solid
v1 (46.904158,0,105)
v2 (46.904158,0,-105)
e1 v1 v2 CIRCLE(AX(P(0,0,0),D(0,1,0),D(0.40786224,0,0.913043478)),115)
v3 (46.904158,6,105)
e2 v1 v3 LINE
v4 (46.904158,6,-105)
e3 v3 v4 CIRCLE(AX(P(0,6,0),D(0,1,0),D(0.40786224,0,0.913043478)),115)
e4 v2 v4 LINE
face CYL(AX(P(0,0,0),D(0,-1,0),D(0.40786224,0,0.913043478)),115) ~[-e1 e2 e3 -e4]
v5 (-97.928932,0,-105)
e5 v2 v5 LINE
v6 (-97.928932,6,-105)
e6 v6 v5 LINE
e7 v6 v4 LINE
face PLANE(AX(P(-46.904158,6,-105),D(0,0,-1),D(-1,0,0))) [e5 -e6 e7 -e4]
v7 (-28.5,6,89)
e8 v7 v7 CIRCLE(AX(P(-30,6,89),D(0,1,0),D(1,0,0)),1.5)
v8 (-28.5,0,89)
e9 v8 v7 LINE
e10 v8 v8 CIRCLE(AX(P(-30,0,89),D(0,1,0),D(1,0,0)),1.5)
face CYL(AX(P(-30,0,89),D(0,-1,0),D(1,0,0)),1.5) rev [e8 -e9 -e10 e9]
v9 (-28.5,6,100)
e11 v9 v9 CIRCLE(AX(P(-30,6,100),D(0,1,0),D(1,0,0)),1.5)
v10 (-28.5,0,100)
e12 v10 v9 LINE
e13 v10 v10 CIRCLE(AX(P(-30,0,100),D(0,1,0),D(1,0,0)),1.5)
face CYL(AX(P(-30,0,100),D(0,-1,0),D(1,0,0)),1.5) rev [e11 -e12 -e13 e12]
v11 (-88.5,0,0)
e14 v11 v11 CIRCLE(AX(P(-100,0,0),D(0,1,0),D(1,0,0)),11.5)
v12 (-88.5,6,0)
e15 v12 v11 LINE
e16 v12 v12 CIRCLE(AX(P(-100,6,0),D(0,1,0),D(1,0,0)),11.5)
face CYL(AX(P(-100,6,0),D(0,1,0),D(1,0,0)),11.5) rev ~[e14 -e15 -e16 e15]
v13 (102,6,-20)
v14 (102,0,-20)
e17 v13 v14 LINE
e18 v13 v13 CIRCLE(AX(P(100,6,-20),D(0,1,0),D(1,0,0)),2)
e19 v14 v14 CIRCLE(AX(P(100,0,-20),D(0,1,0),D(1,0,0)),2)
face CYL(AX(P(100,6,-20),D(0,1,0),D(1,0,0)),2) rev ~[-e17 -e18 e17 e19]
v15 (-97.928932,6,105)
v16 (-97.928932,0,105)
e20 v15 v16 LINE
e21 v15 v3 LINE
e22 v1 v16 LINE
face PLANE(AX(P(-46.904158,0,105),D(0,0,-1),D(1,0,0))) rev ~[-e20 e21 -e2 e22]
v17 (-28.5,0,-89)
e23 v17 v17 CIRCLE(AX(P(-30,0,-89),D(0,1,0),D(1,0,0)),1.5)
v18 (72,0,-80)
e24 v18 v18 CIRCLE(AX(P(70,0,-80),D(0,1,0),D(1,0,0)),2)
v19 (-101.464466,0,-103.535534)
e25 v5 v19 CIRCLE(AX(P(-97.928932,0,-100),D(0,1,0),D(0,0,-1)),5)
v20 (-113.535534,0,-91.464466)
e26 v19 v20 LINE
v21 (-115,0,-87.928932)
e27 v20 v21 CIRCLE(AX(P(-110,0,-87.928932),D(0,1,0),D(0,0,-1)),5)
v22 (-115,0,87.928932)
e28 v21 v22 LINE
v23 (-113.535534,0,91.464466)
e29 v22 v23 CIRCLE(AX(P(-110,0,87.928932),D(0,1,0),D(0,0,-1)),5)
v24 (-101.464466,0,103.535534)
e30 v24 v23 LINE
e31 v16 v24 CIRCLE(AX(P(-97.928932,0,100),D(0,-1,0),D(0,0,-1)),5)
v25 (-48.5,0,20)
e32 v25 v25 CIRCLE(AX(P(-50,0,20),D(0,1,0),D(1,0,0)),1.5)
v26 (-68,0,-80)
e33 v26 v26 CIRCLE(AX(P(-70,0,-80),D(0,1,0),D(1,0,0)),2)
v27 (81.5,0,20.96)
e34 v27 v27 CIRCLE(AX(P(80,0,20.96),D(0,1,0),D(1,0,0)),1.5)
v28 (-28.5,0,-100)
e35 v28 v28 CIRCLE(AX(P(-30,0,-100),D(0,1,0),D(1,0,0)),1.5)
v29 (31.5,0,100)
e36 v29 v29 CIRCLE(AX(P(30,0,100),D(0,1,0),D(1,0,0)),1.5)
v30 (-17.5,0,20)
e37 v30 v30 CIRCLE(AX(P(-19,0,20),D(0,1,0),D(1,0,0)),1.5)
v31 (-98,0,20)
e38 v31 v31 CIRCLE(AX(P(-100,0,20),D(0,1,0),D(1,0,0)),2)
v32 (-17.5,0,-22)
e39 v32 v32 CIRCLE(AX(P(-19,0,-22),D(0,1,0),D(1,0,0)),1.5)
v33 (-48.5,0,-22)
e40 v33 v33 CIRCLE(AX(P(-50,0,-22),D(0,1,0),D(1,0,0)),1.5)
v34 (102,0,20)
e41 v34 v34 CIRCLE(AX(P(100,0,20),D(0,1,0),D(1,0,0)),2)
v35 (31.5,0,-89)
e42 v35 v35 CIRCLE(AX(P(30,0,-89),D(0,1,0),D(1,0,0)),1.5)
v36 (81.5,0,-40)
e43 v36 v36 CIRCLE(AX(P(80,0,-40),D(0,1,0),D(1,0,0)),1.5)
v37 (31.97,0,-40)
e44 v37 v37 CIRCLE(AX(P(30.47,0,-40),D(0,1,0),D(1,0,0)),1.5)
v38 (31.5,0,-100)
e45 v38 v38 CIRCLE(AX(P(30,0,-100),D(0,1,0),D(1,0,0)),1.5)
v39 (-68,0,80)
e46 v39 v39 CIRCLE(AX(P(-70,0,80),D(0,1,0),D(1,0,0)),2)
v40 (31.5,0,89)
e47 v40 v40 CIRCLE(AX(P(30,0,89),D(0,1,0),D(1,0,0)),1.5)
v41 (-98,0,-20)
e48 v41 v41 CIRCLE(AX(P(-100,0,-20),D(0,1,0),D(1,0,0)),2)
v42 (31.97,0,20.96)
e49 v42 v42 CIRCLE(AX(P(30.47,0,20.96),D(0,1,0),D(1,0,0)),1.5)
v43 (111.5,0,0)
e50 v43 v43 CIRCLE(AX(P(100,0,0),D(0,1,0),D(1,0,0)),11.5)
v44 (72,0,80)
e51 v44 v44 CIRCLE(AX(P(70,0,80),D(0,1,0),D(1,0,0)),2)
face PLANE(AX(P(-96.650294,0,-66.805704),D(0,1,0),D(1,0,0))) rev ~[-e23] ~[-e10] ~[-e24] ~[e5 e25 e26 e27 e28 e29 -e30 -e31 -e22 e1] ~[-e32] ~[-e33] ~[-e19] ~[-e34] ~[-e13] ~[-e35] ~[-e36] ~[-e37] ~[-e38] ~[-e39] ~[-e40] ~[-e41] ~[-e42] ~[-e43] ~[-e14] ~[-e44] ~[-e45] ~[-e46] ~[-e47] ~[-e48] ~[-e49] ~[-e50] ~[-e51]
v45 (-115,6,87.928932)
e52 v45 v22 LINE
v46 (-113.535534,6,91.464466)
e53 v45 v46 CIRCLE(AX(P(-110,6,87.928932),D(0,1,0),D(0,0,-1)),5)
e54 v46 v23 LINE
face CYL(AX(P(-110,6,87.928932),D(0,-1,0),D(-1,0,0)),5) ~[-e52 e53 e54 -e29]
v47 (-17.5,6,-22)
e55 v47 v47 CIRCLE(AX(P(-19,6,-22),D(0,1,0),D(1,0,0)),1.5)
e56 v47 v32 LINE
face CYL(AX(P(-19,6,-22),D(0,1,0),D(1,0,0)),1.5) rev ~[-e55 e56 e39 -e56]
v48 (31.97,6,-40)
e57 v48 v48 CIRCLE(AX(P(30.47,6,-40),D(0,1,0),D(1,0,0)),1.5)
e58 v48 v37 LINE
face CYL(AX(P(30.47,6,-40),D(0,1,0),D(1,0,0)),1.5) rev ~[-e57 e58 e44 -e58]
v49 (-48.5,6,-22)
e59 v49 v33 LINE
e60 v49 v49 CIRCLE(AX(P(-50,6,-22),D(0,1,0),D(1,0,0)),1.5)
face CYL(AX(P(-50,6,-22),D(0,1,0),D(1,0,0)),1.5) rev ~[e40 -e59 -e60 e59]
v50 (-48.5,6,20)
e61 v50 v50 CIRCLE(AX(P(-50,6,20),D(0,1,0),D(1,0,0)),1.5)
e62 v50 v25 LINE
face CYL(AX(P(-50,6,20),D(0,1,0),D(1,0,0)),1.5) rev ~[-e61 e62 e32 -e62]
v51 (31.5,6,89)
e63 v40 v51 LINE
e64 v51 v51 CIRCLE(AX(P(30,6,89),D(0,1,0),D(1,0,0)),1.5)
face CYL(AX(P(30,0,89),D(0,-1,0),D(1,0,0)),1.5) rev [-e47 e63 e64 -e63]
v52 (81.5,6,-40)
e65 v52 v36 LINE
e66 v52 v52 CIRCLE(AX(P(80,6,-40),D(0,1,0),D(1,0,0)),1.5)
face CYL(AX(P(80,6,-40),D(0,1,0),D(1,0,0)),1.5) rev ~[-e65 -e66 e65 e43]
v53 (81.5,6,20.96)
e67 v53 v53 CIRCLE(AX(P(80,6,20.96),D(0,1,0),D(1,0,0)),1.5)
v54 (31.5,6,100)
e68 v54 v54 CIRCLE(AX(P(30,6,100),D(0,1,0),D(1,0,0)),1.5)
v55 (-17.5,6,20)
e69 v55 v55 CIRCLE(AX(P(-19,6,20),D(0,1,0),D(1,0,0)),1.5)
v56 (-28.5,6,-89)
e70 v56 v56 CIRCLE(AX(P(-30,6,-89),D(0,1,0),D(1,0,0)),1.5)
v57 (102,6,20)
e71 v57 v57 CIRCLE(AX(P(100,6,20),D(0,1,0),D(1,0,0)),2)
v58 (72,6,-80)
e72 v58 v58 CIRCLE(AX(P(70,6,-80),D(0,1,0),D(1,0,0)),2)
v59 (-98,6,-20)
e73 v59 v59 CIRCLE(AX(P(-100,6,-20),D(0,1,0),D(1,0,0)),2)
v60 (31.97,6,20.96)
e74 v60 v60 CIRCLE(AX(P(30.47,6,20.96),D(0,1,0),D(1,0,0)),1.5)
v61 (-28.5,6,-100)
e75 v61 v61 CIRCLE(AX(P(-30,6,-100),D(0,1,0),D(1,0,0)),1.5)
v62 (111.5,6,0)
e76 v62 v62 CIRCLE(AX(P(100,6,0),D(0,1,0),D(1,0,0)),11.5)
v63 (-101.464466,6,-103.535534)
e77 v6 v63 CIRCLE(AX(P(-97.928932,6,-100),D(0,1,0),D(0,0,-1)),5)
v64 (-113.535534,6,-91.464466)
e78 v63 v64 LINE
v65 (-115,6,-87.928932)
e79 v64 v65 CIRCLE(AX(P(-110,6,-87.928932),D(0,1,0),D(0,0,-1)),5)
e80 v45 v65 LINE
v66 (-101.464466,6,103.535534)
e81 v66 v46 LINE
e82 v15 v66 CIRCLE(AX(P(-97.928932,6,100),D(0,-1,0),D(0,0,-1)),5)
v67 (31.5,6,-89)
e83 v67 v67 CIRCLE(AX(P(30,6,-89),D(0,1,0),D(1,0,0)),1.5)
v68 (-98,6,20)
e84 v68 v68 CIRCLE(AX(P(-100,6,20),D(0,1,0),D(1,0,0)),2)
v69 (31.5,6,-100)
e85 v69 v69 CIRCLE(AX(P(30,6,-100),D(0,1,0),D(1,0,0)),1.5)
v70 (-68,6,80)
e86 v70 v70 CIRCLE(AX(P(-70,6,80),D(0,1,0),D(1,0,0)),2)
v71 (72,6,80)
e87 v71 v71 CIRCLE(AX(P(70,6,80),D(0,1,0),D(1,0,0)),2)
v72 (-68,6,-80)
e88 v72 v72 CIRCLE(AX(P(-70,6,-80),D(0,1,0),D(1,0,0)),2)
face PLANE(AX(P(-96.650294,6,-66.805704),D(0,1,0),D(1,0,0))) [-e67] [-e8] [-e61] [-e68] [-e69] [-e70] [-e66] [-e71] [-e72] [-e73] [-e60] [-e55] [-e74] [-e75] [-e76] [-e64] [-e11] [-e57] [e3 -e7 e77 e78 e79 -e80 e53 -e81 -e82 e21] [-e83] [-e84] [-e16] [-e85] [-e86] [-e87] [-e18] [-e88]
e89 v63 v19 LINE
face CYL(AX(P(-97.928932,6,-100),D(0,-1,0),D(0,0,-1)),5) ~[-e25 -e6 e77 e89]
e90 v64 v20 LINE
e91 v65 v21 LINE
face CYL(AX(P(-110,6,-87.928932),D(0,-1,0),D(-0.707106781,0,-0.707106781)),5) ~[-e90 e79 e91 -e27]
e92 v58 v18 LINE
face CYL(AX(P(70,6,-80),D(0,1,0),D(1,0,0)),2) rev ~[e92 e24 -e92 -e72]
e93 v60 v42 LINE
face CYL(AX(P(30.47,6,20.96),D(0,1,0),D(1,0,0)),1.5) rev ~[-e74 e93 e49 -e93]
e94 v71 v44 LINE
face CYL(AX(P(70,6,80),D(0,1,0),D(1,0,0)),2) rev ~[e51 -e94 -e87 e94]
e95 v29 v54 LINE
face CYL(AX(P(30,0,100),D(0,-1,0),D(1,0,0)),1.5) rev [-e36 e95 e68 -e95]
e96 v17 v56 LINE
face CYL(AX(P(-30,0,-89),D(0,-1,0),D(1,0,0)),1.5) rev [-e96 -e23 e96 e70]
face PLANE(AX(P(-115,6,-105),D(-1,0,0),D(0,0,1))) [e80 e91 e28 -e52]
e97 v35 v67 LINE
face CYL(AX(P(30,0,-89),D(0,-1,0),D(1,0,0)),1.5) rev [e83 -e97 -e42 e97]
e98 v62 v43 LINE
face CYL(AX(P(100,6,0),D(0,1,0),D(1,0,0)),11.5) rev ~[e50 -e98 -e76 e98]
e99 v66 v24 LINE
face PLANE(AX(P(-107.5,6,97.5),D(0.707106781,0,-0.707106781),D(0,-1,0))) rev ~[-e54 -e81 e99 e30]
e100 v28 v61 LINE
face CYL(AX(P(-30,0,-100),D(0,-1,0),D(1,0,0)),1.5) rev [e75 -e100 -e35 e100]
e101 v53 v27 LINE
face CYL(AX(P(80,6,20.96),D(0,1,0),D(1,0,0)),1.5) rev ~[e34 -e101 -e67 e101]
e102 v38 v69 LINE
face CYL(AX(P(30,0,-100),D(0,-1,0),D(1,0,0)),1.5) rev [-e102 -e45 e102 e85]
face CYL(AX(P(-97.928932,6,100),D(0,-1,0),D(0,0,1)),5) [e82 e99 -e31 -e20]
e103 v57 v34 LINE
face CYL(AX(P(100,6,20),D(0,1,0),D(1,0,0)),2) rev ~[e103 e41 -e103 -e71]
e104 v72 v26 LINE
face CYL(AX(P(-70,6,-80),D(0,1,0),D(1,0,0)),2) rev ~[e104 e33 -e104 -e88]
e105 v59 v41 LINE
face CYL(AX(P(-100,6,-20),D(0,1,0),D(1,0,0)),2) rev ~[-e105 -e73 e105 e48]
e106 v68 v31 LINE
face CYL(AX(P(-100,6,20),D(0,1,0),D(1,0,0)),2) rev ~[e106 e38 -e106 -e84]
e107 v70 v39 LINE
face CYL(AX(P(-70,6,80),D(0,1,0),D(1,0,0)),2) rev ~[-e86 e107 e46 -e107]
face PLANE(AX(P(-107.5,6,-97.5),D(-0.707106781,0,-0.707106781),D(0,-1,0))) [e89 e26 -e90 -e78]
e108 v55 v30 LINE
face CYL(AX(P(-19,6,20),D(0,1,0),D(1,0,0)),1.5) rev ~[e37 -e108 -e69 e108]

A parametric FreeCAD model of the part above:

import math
import FreeCAD as App
import Part
import Sketcher


def edges_at(feature, points):
    """Names of the edges that pass closest to the given points."""
    edges = feature.Shape.Edges
    near = lambda p: min(range(len(edges)), key=lambda i: edges[i].distToShape(Part.Vertex(*p))[0])
    return sorted({f"Edge{near(p) + 1}" for p in points})

doc = App.newDocument("Part")
body = doc.addObject("PartDesign::Body", "Body")

sketch1 = body.newObject("Sketcher::SketchObject", "Sketch")
sketch1.AttachmentSupport = (doc.getObject("XZ_Plane"), [""])
sketch1.MapMode = "FlatFace"
sketch1.addGeometry([
    Part.LineSegment(App.Vector(-46.9, 105, 0), App.Vector(46.9, 105, 0)),
    Part.ArcOfCircle(Part.Circle(App.Vector(0, 0, 0), App.Vector(0, 0, 1), 115), math.radians(-66), math.radians(66)),
    Part.LineSegment(App.Vector(46.9, -105, 0), App.Vector(-46.9, -105, 0)),
    Part.ArcOfCircle(Part.Circle(App.Vector(0, 0, 0), App.Vector(0, 0, 1), 115), math.radians(114), math.radians(246)),
    Part.Circle(App.Vector(-30, 100, 0), App.Vector(0, 0, 1), 1.5),
    Part.Circle(App.Vector(-30, 89, 0), App.Vector(0, 0, 1), 1.5),
    Part.Circle(App.Vector(30, 100, 0), App.Vector(0, 0, 1), 1.5),
    Part.Circle(App.Vector(30, 89, 0), App.Vector(0, 0, 1), 1.5),
    Part.Circle(App.Vector(-30, -89, 0), App.Vector(0, 0, 1), 1.5),
    Part.Circle(App.Vector(-30, -100, 0), App.Vector(0, 0, 1), 1.5),
    Part.Circle(App.Vector(30, -89, 0), App.Vector(0, 0, 1), 1.5),
    Part.Circle(App.Vector(30, -100, 0), App.Vector(0, 0, 1), 1.5),
], False)
sketch1.addConstraint([
    Sketcher.Constraint("Coincident", 0, 2, 1, 2),
    Sketcher.Constraint("Coincident", 1, 1, 2, 1),
    Sketcher.Constraint("Coincident", 2, 2, 3, 2),
    Sketcher.Constraint("Coincident", 3, 1, 0, 1),
    Sketcher.Constraint("Horizontal", 0),
    Sketcher.Constraint("Horizontal", 2),
    Sketcher.Constraint("Coincident", 1, 3, -1, 1),
    Sketcher.Constraint("Coincident", 3, 3, -1, 1),
    Sketcher.Constraint("Equal", 1, 3),
    Sketcher.Constraint("Equal", 4, 5),
    Sketcher.Constraint("Equal", 5, 6),
    Sketcher.Constraint("Equal", 6, 7),
    Sketcher.Constraint("Equal", 7, 8),
    Sketcher.Constraint("Equal", 8, 9),
    Sketcher.Constraint("Equal", 9, 10),
    Sketcher.Constraint("Equal", 10, 11),
    Sketcher.Constraint("Symmetric", 7, 3, 8, 3, -1, 1),
    Sketcher.Constraint("Symmetric", 6, 3, 9, 3, -1, 1),
    Sketcher.Constraint("Symmetric", 5, 3, 10, 3, -1, 1),
    Sketcher.Constraint("Symmetric", 4, 3, 11, 3, -1, 1),
    Sketcher.Constraint("Symmetric", 4, 3, 6, 3, -2),
    Sketcher.Constraint("Symmetric", 5, 3, 7, 3, -2),
    Sketcher.Constraint("Vertical", 4, 3, 5, 3),
    Sketcher.Constraint("Vertical", 0, 2, 1, 1),
    Sketcher.Constraint("Diameter", 4, 3.0),
    Sketcher.Constraint("Radius", 1, 115.0),
    Sketcher.Constraint("DistanceX", 4, 3, -1, 1, 30.0),
    Sketcher.Constraint("DistanceY", -1, 1, 4, 3, 100.0),
    Sketcher.Constraint("DistanceY", -1, 1, 5, 3, 89.0),
    Sketcher.Constraint("DistanceY", -1, 1, 0, 2, 105.0),
])
pad1 = body.newObject("PartDesign::Pad", "Pad")
pad1.Profile = sketch1
pad1.Length = 6
pad1.Reversed = True

sketch2 = body.newObject("Sketcher::SketchObject", "Sketch001")
sketch2.AttachmentSupport = (doc.getObject("XZ_Plane"), [""])
sketch2.MapMode = "FlatFace"
sketch2.AttachmentOffset = App.Placement(App.Vector(0, 0, -6), App.Rotation())
sketch2.addGeometry([
    Part.Circle(App.Vector(-50, -22, 0), App.Vector(0, 0, 1), 1.5),
    Part.Circle(App.Vector(-19, -22, 0), App.Vector(0, 0, 1), 1.5),
    Part.Circle(App.Vector(-19, 20, 0), App.Vector(0, 0, 1), 1.5),
    Part.Circle(App.Vector(-50, 20, 0), App.Vector(0, 0, 1), 1.5),
    Part.Circle(App.Vector(80, -40, 0), App.Vector(0, 0, 1), 1.5),
    Part.Circle(App.Vector(30.5, -40, 0), App.Vector(0, 0, 1), 1.5),
    Part.Circle(App.Vector(30.5, 21, 0), App.Vector(0, 0, 1), 1.5),
    Part.Circle(App.Vector(80, 21, 0), App.Vector(0, 0, 1), 1.5),
    Part.Circle(App.Vector(70, -80, 0), App.Vector(0, 0, 1), 2),
    Part.Circle(App.Vector(-70, -80, 0), App.Vector(0, 0, 1), 2),
    Part.Circle(App.Vector(-70, 80, 0), App.Vector(0, 0, 1), 2),
    Part.Circle(App.Vector(70, 80, 0), App.Vector(0, 0, 1), 2),
    Part.Circle(App.Vector(-100, -20, 0), App.Vector(0, 0, 1), 2),
    Part.Circle(App.Vector(-100, 20, 0), App.Vector(0, 0, 1), 2),
    Part.Circle(App.Vector(100, -20, 0), App.Vector(0, 0, 1), 2),
    Part.Circle(App.Vector(100, 20, 0), App.Vector(0, 0, 1), 2),
    Part.Circle(App.Vector(-100, 0, 0), App.Vector(0, 0, 1), 11.5),
    Part.Circle(App.Vector(100, 0, 0), App.Vector(0, 0, 1), 11.5),
], False)
sketch2.addConstraint([
    Sketcher.Constraint("Equal", 0, 1),
    Sketcher.Constraint("Equal", 1, 2),
    Sketcher.Constraint("Equal", 2, 3),
    Sketcher.Constraint("Equal", 3, 4),
    Sketcher.Constraint("Equal", 4, 5),
    Sketcher.Constraint("Equal", 5, 6),
    Sketcher.Constraint("Equal", 6, 7),
    Sketcher.Constraint("Equal", 8, 9),
    Sketcher.Constraint("Equal", 9, 10),
    Sketcher.Constraint("Equal", 10, 11),
    Sketcher.Constraint("Equal", 11, 12),
    Sketcher.Constraint("Equal", 12, 13),
    Sketcher.Constraint("Equal", 13, 14),
    Sketcher.Constraint("Equal", 14, 15),
    Sketcher.Constraint("Equal", 16, 17),
    Sketcher.Constraint("Symmetric", 8, 3, 10, 3, -1, 1),
    Sketcher.Constraint("Symmetric", 9, 3, 11, 3, -1, 1),
    Sketcher.Constraint("Symmetric", 13, 3, 14, 3, -1, 1),
    Sketcher.Constraint("Symmetric", 12, 3, 15, 3, -1, 1),
    Sketcher.Constraint("Symmetric", 16, 3, 17, 3, -1, 1),
    Sketcher.Constraint("Symmetric", 8, 3, 9, 3, -2),
    Sketcher.Constraint("Symmetric", 12, 3, 14, 3, -2),
    Sketcher.Constraint("PointOnObject", 16, 3, -1),
    Sketcher.Constraint("Horizontal", 0, 3, 1, 3),
    Sketcher.Constraint("Horizontal", 2, 3, 3, 3),
    Sketcher.Constraint("Horizontal", 4, 3, 5, 3),
    Sketcher.Constraint("Horizontal", 6, 3, 7, 3),
    Sketcher.Constraint("Horizontal", 3, 3, 13, 3),
    Sketcher.Constraint("Vertical", 1, 3, 2, 3),
    Sketcher.Constraint("Vertical", 0, 3, 3, 3),
    Sketcher.Constraint("Vertical", 5, 3, 6, 3),
    Sketcher.Constraint("Vertical", 4, 3, 7, 3),
    Sketcher.Constraint("Vertical", 13, 3, 16, 3),
    Sketcher.Constraint("Diameter", 0, 3.0),
    Sketcher.Constraint("Diameter", 8, 4.0),
    Sketcher.Constraint("Diameter", 16, 23.0),
    Sketcher.Constraint("DistanceX", 0, 3, -1, 1, 50.0),
    Sketcher.Constraint("DistanceY", 0, 3, -1, 1, 22.0),
    Sketcher.Constraint("DistanceX", 1, 3, -1, 1, 19.0),
    Sketcher.Constraint("DistanceY", -1, 1, 2, 3, 20.0),
    Sketcher.Constraint("DistanceX", -1, 1, 4, 3, 80.0),
    Sketcher.Constraint("DistanceY", 4, 3, -1, 1, 40.0),
    Sketcher.Constraint("DistanceX", -1, 1, 8, 3, 70.0),
    Sketcher.Constraint("DistanceY", 8, 3, -1, 1, 80.0),
    Sketcher.Constraint("DistanceX", 12, 3, -1, 1, 100.0),
    Sketcher.Constraint("DistanceX", -1, 1, 5, 3, 30.47),
    Sketcher.Constraint("DistanceY", -1, 1, 6, 3, 20.96),
])
pocket1 = body.newObject("PartDesign::Pocket", "Pocket")
pocket1.Profile = sketch2
pocket1.Length = 6
pocket1.Reversed = True

sketch3 = body.newObject("Sketcher::SketchObject", "Sketch002")
sketch3.AttachmentSupport = (doc.getObject("XZ_Plane"), [""])
sketch3.MapMode = "FlatFace"
sketch3.AttachmentOffset = App.Placement(App.Vector(0, 0, -6), App.Rotation())
sketch3.addGeometry([
    Part.ArcOfCircle(Part.Circle(App.Vector(0, 0, 0), App.Vector(0, 0, 1), 115), math.radians(180), math.radians(246)),
    Part.LineSegment(App.Vector(-47, -105, 0), App.Vector(-115, -105, 0)),
    Part.LineSegment(App.Vector(-115, -105, 0), App.Vector(-115, 0, 0)),
    Part.ArcOfCircle(Part.Circle(App.Vector(0, 0, 0), App.Vector(0, 0, 1), 115), math.radians(114), math.radians(180)),
    Part.LineSegment(App.Vector(-115, 0, 0), App.Vector(-115, 105, 0)),
    Part.LineSegment(App.Vector(-115, 105, 0), App.Vector(-47, 105, 0)),
], False)
sketch3.addConstraint([
    Sketcher.Constraint("Coincident", 0, 2, 1, 1),
    Sketcher.Constraint("Coincident", 1, 2, 2, 1),
    Sketcher.Constraint("Tangent", 2, 2, 0, 1),
    Sketcher.Constraint("Tangent", 3, 2, 4, 1),
    Sketcher.Constraint("Coincident", 4, 2, 5, 1),
    Sketcher.Constraint("Coincident", 5, 2, 3, 1),
    Sketcher.Constraint("Horizontal", 1),
    Sketcher.Constraint("Vertical", 2),
    Sketcher.Constraint("Vertical", 4),
    Sketcher.Constraint("Horizontal", 5),
    Sketcher.Constraint("Coincident", 0, 3, -1, 1),
    Sketcher.Constraint("Coincident", 3, 3, -1, 1),
    Sketcher.Constraint("Equal", 0, 3),
    Sketcher.Constraint("Vertical", 0, 2, 5, 2),
    Sketcher.Constraint("Radius", 0, 115.0),
    Sketcher.Constraint("DistanceY", 2, 1, 2, 2, 105.0),
])
pad2 = body.newObject("PartDesign::Pad", "Pad001")
pad2.Profile = sketch3
pad2.Length = 6
doc.recompute()

chamfer = body.newObject("PartDesign::Chamfer", "Chamfer")
chamfer.Base = (pad2, edges_at(pad2, [(-115, 3, -105), (-115, 3, 105)]))
chamfer.Size = 15
doc.recompute()

fillet = body.newObject("PartDesign::Fillet", "Fillet")
fillet.Base = (chamfer, edges_at(chamfer, [
    (-115, 3, -90),
    (-115, 3, 90),
    (-100, 3, 105),
    (-100, 3, -105),
]))
fillet.Radius = 5

doc.recompute()
